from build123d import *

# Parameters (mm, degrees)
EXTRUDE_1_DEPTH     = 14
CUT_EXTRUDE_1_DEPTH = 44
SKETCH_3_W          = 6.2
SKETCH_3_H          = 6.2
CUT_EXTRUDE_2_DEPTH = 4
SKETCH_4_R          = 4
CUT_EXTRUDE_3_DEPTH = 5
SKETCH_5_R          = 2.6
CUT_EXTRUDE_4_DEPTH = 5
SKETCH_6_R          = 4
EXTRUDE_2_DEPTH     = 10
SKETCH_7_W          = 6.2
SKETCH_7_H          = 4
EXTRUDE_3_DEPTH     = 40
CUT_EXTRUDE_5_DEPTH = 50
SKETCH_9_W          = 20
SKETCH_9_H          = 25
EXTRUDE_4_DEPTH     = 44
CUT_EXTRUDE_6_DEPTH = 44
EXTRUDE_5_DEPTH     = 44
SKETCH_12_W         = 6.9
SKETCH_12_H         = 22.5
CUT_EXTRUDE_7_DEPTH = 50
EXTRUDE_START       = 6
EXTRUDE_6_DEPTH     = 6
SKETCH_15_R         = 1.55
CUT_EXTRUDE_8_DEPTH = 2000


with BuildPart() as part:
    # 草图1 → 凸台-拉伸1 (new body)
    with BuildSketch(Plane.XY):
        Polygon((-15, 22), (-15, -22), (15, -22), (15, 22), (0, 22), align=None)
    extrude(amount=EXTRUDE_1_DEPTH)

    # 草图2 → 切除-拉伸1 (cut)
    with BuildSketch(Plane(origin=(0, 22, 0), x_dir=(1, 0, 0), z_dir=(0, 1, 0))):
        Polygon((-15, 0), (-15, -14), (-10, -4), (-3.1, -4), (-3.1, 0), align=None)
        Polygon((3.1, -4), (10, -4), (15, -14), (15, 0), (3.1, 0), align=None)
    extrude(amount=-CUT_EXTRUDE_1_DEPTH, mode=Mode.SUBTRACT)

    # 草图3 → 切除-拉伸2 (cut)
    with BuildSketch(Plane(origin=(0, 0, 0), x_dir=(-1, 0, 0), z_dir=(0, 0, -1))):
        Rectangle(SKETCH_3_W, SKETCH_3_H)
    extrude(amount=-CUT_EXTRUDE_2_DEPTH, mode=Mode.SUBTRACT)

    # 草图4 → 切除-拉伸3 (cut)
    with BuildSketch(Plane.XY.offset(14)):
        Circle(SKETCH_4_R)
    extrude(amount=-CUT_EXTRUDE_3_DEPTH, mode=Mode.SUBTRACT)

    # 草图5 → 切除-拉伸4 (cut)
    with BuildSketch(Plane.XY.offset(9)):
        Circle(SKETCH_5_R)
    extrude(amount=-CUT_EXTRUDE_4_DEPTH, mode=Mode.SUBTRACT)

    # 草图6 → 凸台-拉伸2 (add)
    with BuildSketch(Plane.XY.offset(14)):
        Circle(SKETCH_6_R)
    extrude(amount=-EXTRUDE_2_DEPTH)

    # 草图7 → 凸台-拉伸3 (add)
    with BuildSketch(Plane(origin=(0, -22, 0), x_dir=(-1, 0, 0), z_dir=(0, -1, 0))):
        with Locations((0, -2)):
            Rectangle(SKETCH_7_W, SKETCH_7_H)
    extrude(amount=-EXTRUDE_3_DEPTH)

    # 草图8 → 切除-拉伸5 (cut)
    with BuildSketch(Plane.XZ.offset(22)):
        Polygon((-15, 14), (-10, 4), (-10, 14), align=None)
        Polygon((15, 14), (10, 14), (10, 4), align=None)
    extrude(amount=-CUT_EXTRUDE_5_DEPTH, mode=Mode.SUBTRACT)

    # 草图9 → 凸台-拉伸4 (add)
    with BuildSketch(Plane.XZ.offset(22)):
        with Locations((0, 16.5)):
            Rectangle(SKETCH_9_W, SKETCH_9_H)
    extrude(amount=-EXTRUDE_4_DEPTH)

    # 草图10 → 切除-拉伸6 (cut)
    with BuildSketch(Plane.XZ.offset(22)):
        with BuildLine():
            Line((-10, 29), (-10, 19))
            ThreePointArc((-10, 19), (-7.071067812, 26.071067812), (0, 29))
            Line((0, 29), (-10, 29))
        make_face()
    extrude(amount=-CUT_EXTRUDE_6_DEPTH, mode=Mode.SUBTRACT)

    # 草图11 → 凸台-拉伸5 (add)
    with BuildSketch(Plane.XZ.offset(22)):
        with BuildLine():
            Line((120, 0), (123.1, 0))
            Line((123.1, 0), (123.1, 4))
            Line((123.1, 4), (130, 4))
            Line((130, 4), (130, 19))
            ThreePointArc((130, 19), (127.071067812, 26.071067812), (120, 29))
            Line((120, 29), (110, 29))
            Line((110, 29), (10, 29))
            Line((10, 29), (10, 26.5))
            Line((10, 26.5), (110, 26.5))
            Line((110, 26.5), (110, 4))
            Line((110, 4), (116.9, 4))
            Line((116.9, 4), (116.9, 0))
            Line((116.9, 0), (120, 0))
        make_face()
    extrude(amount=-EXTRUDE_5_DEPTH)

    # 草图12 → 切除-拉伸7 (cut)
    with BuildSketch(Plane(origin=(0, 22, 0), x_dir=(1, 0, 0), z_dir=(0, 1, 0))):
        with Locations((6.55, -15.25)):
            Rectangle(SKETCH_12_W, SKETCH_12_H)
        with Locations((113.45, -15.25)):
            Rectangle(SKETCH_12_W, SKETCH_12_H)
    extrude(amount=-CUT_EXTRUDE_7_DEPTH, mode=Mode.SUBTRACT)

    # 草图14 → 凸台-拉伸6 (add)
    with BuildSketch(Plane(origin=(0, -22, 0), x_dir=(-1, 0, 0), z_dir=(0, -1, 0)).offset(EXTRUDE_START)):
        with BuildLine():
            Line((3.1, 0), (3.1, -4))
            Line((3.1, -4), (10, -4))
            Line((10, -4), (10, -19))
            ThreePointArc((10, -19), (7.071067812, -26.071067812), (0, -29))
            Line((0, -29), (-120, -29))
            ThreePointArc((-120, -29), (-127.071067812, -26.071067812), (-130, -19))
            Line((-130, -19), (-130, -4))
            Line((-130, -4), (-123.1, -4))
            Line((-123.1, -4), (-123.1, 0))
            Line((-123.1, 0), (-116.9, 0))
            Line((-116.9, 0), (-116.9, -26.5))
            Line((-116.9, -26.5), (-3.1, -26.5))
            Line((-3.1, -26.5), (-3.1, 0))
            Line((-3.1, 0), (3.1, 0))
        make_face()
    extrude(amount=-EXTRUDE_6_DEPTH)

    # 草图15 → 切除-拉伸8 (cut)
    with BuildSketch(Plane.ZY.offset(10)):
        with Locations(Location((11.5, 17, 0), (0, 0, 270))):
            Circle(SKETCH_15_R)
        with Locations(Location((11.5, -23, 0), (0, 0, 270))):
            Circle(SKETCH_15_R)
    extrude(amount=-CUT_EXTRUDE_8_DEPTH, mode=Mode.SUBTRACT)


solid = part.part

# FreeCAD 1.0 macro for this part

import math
import FreeCAD as App
import Part
import Sketcher

doc = App.newDocument("Part")
body = doc.addObject("PartDesign::Body", "Body")

# Sketch on XY plane
sketch1 = body.newObject("Sketcher::SketchObject", "Sketch")
sketch1.AttachmentSupport = (doc.getObject("XY_Plane"), [""])
sketch1.MapMode = "FlatFace"
sketch1.addGeometry([
    Part.LineSegment(App.Vector(-15, 22, 0), App.Vector(-15, -22, 0)),
    Part.LineSegment(App.Vector(-15, -22, 0), App.Vector(15, -22, 0)),
    Part.LineSegment(App.Vector(15, -22, 0), App.Vector(15, 22, 0)),
    Part.LineSegment(App.Vector(15, 22, 0), App.Vector(-15, 22, 0)),
], False)
sketch1.addConstraint([
    Sketcher.Constraint("Coincident", 0, 2, 1, 1),
    Sketcher.Constraint("Coincident", 1, 2, 2, 1),
    Sketcher.Constraint("Coincident", 2, 2, 3, 1),
    Sketcher.Constraint("Coincident", 3, 2, 0, 1),
    Sketcher.Constraint("Vertical", 0),
    Sketcher.Constraint("Horizontal", 1),
    Sketcher.Constraint("Vertical", 2),
    Sketcher.Constraint("Horizontal", 3),
    Sketcher.Constraint("Symmetric", 0, 2, 2, 2, -1, 1),
    Sketcher.Constraint("DistanceX", 1, 1, 1, 2, 30.0),
    Sketcher.Constraint("DistanceY", 0, 2, 0, 1, 44.0),
])
pad1 = body.newObject("PartDesign::Pad", "Pad")
pad1.Profile = sketch1
pad1.Length = 14

# Sketch on XZ plane
sketch2 = body.newObject("Sketcher::SketchObject", "Sketch001")
sketch2.AttachmentSupport = (doc.getObject("XZ_Plane"), [""])
sketch2.MapMode = "FlatFace"
sketch2.AttachmentOffset = App.Placement(App.Vector(0, 0, -22), App.Rotation())
sketch2.addGeometry([
    Part.LineSegment(App.Vector(-15, 0, 0), App.Vector(-15, 14, 0)),  # 0
    Part.LineSegment(App.Vector(-15, 14, 0), App.Vector(-10, 4, 0)),  # 1
    Part.LineSegment(App.Vector(-10, 4, 0), App.Vector(-3.1, 4, 0)),  # 2
    Part.LineSegment(App.Vector(-3.1, 4, 0), App.Vector(-3.1, 0, 0)),  # 3
    Part.LineSegment(App.Vector(-3.1, 0, 0), App.Vector(-15, 0, 0)),  # 4
    Part.LineSegment(App.Vector(3.1, 4, 0), App.Vector(10, 4, 0)),  # 5
    Part.LineSegment(App.Vector(10, 4, 0), App.Vector(15, 14, 0)),  # 6
    Part.LineSegment(App.Vector(15, 14, 0), App.Vector(15, 0, 0)),  # 7
    Part.LineSegment(App.Vector(15, 0, 0), App.Vector(3.1, 0, 0)),  # 8
    Part.LineSegment(App.Vector(3.1, 0, 0), App.Vector(3.1, 4, 0)),  # 9
], False)
sketch2.addConstraint([
    Sketcher.Constraint("Coincident", 0, 2, 1, 1),
    Sketcher.Constraint("Coincident", 1, 2, 2, 1),
    Sketcher.Constraint("Coincident", 2, 2, 3, 1),
    Sketcher.Constraint("Coincident", 3, 2, 4, 1),
    Sketcher.Constraint("Coincident", 4, 2, 0, 1),
    Sketcher.Constraint("Coincident", 5, 2, 6, 1),
    Sketcher.Constraint("Coincident", 6, 2, 7, 1),
    Sketcher.Constraint("Coincident", 7, 2, 8, 1),
    Sketcher.Constraint("Coincident", 8, 2, 9, 1),
    Sketcher.Constraint("Coincident", 9, 2, 5, 1),
    Sketcher.Constraint("Vertical", 0),
    Sketcher.Constraint("Horizontal", 2),
    Sketcher.Constraint("Vertical", 3),
    Sketcher.Constraint("Horizontal", 4),
    Sketcher.Constraint("Horizontal", 5),
    Sketcher.Constraint("Vertical", 7),
    Sketcher.Constraint("Horizontal", 8),
    Sketcher.Constraint("Vertical", 9),
    Sketcher.Constraint("Symmetric", 4, 2, 7, 2, -1, 1),
    Sketcher.Constraint("Symmetric", 1, 2, 5, 2, -2),
    Sketcher.Constraint("Symmetric", 3, 2, 8, 2, -2),
    Sketcher.Constraint("Horizontal", 0, 2, 6, 2),
    Sketcher.Constraint("DistanceY", 0, 1, 0, 2, 14.0),
    Sketcher.Constraint("DistanceY", 3, 2, 3, 1, 4.0),
    Sketcher.Constraint("DistanceX", 2, 1, 2, 2, 6.9),
    Sketcher.Constraint("DistanceX", 4, 2, 4, 1, 11.9),
    Sketcher.Constraint("DistanceX", 0, 2, -1, 1, 15.0),
])
pocket1 = body.newObject("PartDesign::Pocket", "Pocket")
pocket1.Profile = sketch2
pocket1.Length = 44
pocket1.Reversed = True

# Sketch on XY plane
sketch3 = body.newObject("Sketcher::SketchObject", "Sketch002")
sketch3.AttachmentSupport = (doc.getObject("XY_Plane"), [""])
sketch3.MapMode = "FlatFace"
sketch3.addGeometry([
    Part.LineSegment(App.Vector(3.1, 3.1, 0), App.Vector(3.1, -3.1, 0)),
    Part.LineSegment(App.Vector(3.1, -3.1, 0), App.Vector(-3.1, -3.1, 0)),
    Part.LineSegment(App.Vector(-3.1, -3.1, 0), App.Vector(-3.1, 3.1, 0)),
    Part.LineSegment(App.Vector(-3.1, 3.1, 0), App.Vector(3.1, 3.1, 0)),
], False)
sketch3.addConstraint([
    Sketcher.Constraint("Coincident", 0, 2, 1, 1),
    Sketcher.Constraint("Coincident", 1, 2, 2, 1),
    Sketcher.Constraint("Coincident", 2, 2, 3, 1),
    Sketcher.Constraint("Coincident", 3, 2, 0, 1),
    Sketcher.Constraint("Vertical", 0),
    Sketcher.Constraint("Horizontal", 1),
    Sketcher.Constraint("Vertical", 2),
    Sketcher.Constraint("Horizontal", 3),
    Sketcher.Constraint("Symmetric", 0, 2, 2, 2, -1, 1),
    Sketcher.Constraint("Equal", 3, 0),
    Sketcher.Constraint("DistanceX", 1, 2, 1, 1, 6.2),
])
pocket2 = body.newObject("PartDesign::Pocket", "Pocket001")
pocket2.Profile = sketch3
pocket2.Length = 4
pocket2.Reversed = True

# Sketch on XY plane
sketch4 = body.newObject("Sketcher::SketchObject", "Sketch003")
sketch4.AttachmentSupport = (doc.getObject("XY_Plane"), [""])
sketch4.MapMode = "FlatFace"
sketch4.AttachmentOffset = App.Placement(App.Vector(0, 0, 14), App.Rotation())
sketch4.addGeometry(Part.Circle(App.Vector(0, 0, 0), App.Vector(0, 0, 1), 4), False)
sketch4.addConstraint([
    Sketcher.Constraint("Coincident", 0, 3, -1, 1),
    Sketcher.Constraint("Diameter", 0, 8.0),
])
pocket3 = body.newObject("PartDesign::Pocket", "Pocket002")
pocket3.Profile = sketch4
pocket3.Length = 5

# Sketch on XY plane
sketch5 = body.newObject("Sketcher::SketchObject", "Sketch004")
sketch5.AttachmentSupport = (doc.getObject("XY_Plane"), [""])
sketch5.MapMode = "FlatFace"
sketch5.AttachmentOffset = App.Placement(App.Vector(0, 0, 9), App.Rotation())
sketch5.addGeometry(Part.Circle(App.Vector(0, 0, 0), App.Vector(0, 0, 1), 2.6), False)
sketch5.addConstraint([
    Sketcher.Constraint("Coincident", 0, 3, -1, 1),
    Sketcher.Constraint("Diameter", 0, 5.2),
])
pocket4 = body.newObject("PartDesign::Pocket", "Pocket003")
pocket4.Profile = sketch5
pocket4.Length = 5

# Sketch on XY plane
sketch6 = body.newObject("Sketcher::SketchObject", "Sketch005")
sketch6.AttachmentSupport = (doc.getObject("XY_Plane"), [""])
sketch6.MapMode = "FlatFace"
sketch6.AttachmentOffset = App.Placement(App.Vector(0, 0, 14), App.Rotation())
sketch6.addGeometry(Part.Circle(App.Vector(0, 0, 0), App.Vector(0, 0, 1), 4), False)
sketch6.addConstraint([
    Sketcher.Constraint("Coincident", 0, 3, -1, 1),
    Sketcher.Constraint("Diameter", 0, 8.0),
])
pad2 = body.newObject("PartDesign::Pad", "Pad001")
pad2.Profile = sketch6
pad2.Length = 10
pad2.Reversed = True

# Sketch on XZ plane
sketch7 = body.newObject("Sketcher::SketchObject", "Sketch006")
sketch7.AttachmentSupport = (doc.getObject("XZ_Plane"), [""])
sketch7.MapMode = "FlatFace"
sketch7.AttachmentOffset = App.Placement(App.Vector(0, 0, 22), App.Rotation())
sketch7.addGeometry([
    Part.LineSegment(App.Vector(3.1, 0, 0), App.Vector(3.1, 4, 0)),
    Part.LineSegment(App.Vector(3.1, 4, 0), App.Vector(-3.1, 4, 0)),
    Part.LineSegment(App.Vector(-3.1, 4, 0), App.Vector(-3.1, 0, 0)),
    Part.LineSegment(App.Vector(-3.1, 0, 0), App.Vector(3.1, 0, 0)),
], False)
sketch7.addConstraint([
    Sketcher.Constraint("Coincident", 0, 2, 1, 1),
    Sketcher.Constraint("Coincident", 1, 2, 2, 1),
    Sketcher.Constraint("Coincident", 2, 2, 3, 1),
    Sketcher.Constraint("Coincident", 3, 2, 0, 1),
    Sketcher.Constraint("Vertical", 0),
    Sketcher.Constraint("Horizontal", 1),
    Sketcher.Constraint("Vertical", 2),
    Sketcher.Constraint("Horizontal", 3),
    Sketcher.Constraint("Symmetric", 2, 2, 3, 2, -1, 1),
    Sketcher.Constraint("DistanceY", 0, 1, 0, 2, 4.0),
    Sketcher.Constraint("DistanceX", 1, 2, 1, 1, 6.2),
])
pad3 = body.newObject("PartDesign::Pad", "Pad002")
pad3.Profile = sketch7
pad3.Length = 40
pad3.Reversed = True

# Sketch on XZ plane
sketch8 = body.newObject("Sketcher::SketchObject", "Sketch007")
sketch8.AttachmentSupport = (doc.getObject("XZ_Plane"), [""])
sketch8.MapMode = "FlatFace"
sketch8.AttachmentOffset = App.Placement(App.Vector(0, 0, 22), App.Rotation())
sketch8.addGeometry([
    Part.LineSegment(App.Vector(-15, 14, 0), App.Vector(-10, 4, 0)),  # 0
    Part.LineSegment(App.Vector(-10, 4, 0), App.Vector(-10, 14, 0)),  # 1
    Part.LineSegment(App.Vector(-10, 14, 0), App.Vector(-15, 14, 0)),  # 2
    Part.LineSegment(App.Vector(15, 14, 0), App.Vector(10, 14, 0)),  # 3
    Part.LineSegment(App.Vector(10, 14, 0), App.Vector(10, 4, 0)),  # 4
    Part.LineSegment(App.Vector(10, 4, 0), App.Vector(15, 14, 0)),  # 5
], False)
sketch8.addConstraint([
    Sketcher.Constraint("Coincident", 0, 2, 1, 1),
    Sketcher.Constraint("Coincident", 1, 2, 2, 1),
    Sketcher.Constraint("Coincident", 2, 2, 0, 1),
    Sketcher.Constraint("Coincident", 3, 2, 4, 1),
    Sketcher.Constraint("Coincident", 4, 2, 5, 1),
    Sketcher.Constraint("Coincident", 5, 2, 3, 1),
    Sketcher.Constraint("Vertical", 1),
    Sketcher.Constraint("Horizontal", 2),
    Sketcher.Constraint("Horizontal", 3),
    Sketcher.Constraint("Vertical", 4),
    Sketcher.Constraint("Symmetric", 1, 2, 3, 2, -2),
    Sketcher.Constraint("Horizontal", 0, 2, 4, 2),
    Sketcher.Constraint("Equal", 2, 3),
    Sketcher.Constraint("DistanceX", 2, 2, 2, 1, 5.0),
    Sketcher.Constraint("DistanceY", 1, 1, 1, 2, 10.0),
    Sketcher.Constraint("DistanceX", 0, 2, -1, 1, 10.0),
    Sketcher.Constraint("DistanceY", -1, 1, 0, 2, 4.0),
])
pocket5 = body.newObject("PartDesign::Pocket", "Pocket004")
pocket5.Profile = sketch8
pocket5.Length = 50

# Sketch on XZ plane
sketch9 = body.newObject("Sketcher::SketchObject", "Sketch008")
sketch9.AttachmentSupport = (doc.getObject("XZ_Plane"), [""])
sketch9.MapMode = "FlatFace"
sketch9.AttachmentOffset = App.Placement(App.Vector(0, 0, 22), App.Rotation())
sketch9.addGeometry([
    Part.LineSegment(App.Vector(-10, 29, 0), App.Vector(-10, 4, 0)),
    Part.LineSegment(App.Vector(-10, 4, 0), App.Vector(10, 4, 0)),
    Part.LineSegment(App.Vector(10, 4, 0), App.Vector(10, 29, 0)),
    Part.LineSegment(App.Vector(10, 29, 0), App.Vector(-10, 29, 0)),
], False)
sketch9.addConstraint([
    Sketcher.Constraint("Coincident", 0, 2, 1, 1),
    Sketcher.Constraint("Coincident", 1, 2, 2, 1),
    Sketcher.Constraint("Coincident", 2, 2, 3, 1),
    Sketcher.Constraint("Coincident", 3, 2, 0, 1),
    Sketcher.Constraint("Vertical", 0),
    Sketcher.Constraint("Horizontal", 1),
    Sketcher.Constraint("Vertical", 2),
    Sketcher.Constraint("Horizontal", 3),
    Sketcher.Constraint("DistanceX", 1, 1, 1, 2, 20.0),
    Sketcher.Constraint("DistanceY", 0, 2, 0, 1, 25.0),
    Sketcher.Constraint("DistanceX", 0, 2, -1, 1, 10.0),
    Sketcher.Constraint("DistanceY", -1, 1, 0, 2, 4.0),
])
pad4 = body.newObject("PartDesign::Pad", "Pad003")
pad4.Profile = sketch9
pad4.Length = 44
pad4.Reversed = True

# Sketch on XZ plane
sketch10 = body.newObject("Sketcher::SketchObject", "Sketch009")
sketch10.AttachmentSupport = (doc.getObject("XZ_Plane"), [""])
sketch10.MapMode = "FlatFace"
sketch10.AttachmentOffset = App.Placement(App.Vector(0, 0, 22), App.Rotation())
sketch10.addGeometry([
    Part.LineSegment(App.Vector(-10, 29, 0), App.Vector(-10, 19, 0)),
    Part.ArcOfCircle(Part.Circle(App.Vector(0, 19, 0), App.Vector(0, 0, 1), 10), math.radians(90), math.radians(180)),
    Part.LineSegment(App.Vector(0, 29, 0), App.Vector(-10, 29, 0)),
], False)
sketch10.addConstraint([
    Sketcher.Constraint("Tangent", 0, 2, 1, 2),
    Sketcher.Constraint("Tangent", 1, 1, 2, 1),
    Sketcher.Constraint("Coincident", 2, 2, 0, 1),
    Sketcher.Constraint("Vertical", 0),
    Sketcher.Constraint("Horizontal", 2),
    Sketcher.Constraint("PointOnObject", 1, 3, -2),
    Sketcher.Constraint("Radius", 1, 10.0),
    Sketcher.Constraint("DistanceY", -1, 1, 1, 3, 19.0),
])
pocket6 = body.newObject("PartDesign::Pocket", "Pocket005")
pocket6.Profile = sketch10
pocket6.Length = 44

# Sketch on XZ plane
sketch11 = body.newObject("Sketcher::SketchObject", "Sketch010")
sketch11.AttachmentSupport = (doc.getObject("XZ_Plane"), [""])
sketch11.MapMode = "FlatFace"
sketch11.AttachmentOffset = App.Placement(App.Vector(0, 0, 22), App.Rotation())
sketch11.addGeometry([
    Part.LineSegment(App.Vector(123.1, 0, 0), App.Vector(123.1, 4, 0)),  # 0
    Part.LineSegment(App.Vector(123.1, 4, 0), App.Vector(130, 4, 0)),  # 1
    Part.LineSegment(App.Vector(130, 4, 0), App.Vector(130, 19, 0)),  # 2
    Part.ArcOfCircle(Part.Circle(App.Vector(120, 19, 0), App.Vector(0, 0, 1), 10), math.radians(0), math.radians(90)),  # 3
    Part.LineSegment(App.Vector(120, 29, 0), App.Vector(10, 29, 0)),  # 4
    Part.LineSegment(App.Vector(10, 29, 0), App.Vector(10, 26.5, 0)),  # 5
    Part.LineSegment(App.Vector(10, 26.5, 0), App.Vector(110, 26.5, 0)),  # 6
    Part.LineSegment(App.Vector(110, 26.5, 0), App.Vector(110, 4, 0)),  # 7
    Part.LineSegment(App.Vector(110, 4, 0), App.Vector(116.9, 4, 0)),  # 8
    Part.LineSegment(App.Vector(116.9, 4, 0), App.Vector(116.9, 0, 0)),  # 9
    Part.LineSegment(App.Vector(116.9, 0, 0), App.Vector(123.1, 0, 0)),  # 10
], False)
sketch11.addConstraint([
    Sketcher.Constraint("Coincident", 0, 2, 1, 1),
    Sketcher.Constraint("Coincident", 1, 2, 2, 1),
    Sketcher.Constraint("Tangent", 2, 2, 3, 1),
    Sketcher.Constraint("Tangent", 3, 2, 4, 1),
    Sketcher.Constraint("Coincident", 4, 2, 5, 1),
    Sketcher.Constraint("Coincident", 5, 2, 6, 1),
    Sketcher.Constraint("Coincident", 6, 2, 7, 1),
    Sketcher.Constraint("Coincident", 7, 2, 8, 1),
    Sketcher.Constraint("Coincident", 8, 2, 9, 1),
    Sketcher.Constraint("Coincident", 9, 2, 10, 1),
    Sketcher.Constraint("Coincident", 10, 2, 0, 1),
    Sketcher.Constraint("Vertical", 0),
    Sketcher.Constraint("Horizontal", 1),
    Sketcher.Constraint("Vertical", 2),
    Sketcher.Constraint("Horizontal", 4),
    Sketcher.Constraint("Vertical", 5),
    Sketcher.Constraint("Horizontal", 6),
    Sketcher.Constraint("Vertical", 7),
    Sketcher.Constraint("Horizontal", 8),
    Sketcher.Constraint("Vertical", 9),
    Sketcher.Constraint("Horizontal", 10),
    Sketcher.Constraint("PointOnObject", 9, 2, -1),
    Sketcher.Constraint("Horizontal", 1, 2, 7, 2),
    Sketcher.Constraint("Equal", 1, 8),
    Sketcher.Constraint("Radius", 3, 10.0),
    Sketcher.Constraint("DistanceX", 4, 2, 4, 1, 110.0),
    Sketcher.Constraint("DistanceX", 6, 1, 6, 2, 100.0),
    Sketcher.Constraint("DistanceY", 0, 1, 0, 2, 4.0),
    Sketcher.Constraint("DistanceY", 2, 1, 2, 2, 15.0),
    Sketcher.Constraint("DistanceX", 1, 1, 1, 2, 6.9),
    Sketcher.Constraint("DistanceY", 5, 2, 5, 1, 2.5),
    Sketcher.Constraint("DistanceX", -1, 1, 3, 3, 120.0),
])
pad5 = body.newObject("PartDesign::Pad", "Pad004")
pad5.Profile = sketch11
pad5.Length = 44
pad5.Reversed = True

# Sketch on XZ plane
sketch12 = body.newObject("Sketcher::SketchObject", "Sketch011")
sketch12.AttachmentSupport = (doc.getObject("XZ_Plane"), [""])
sketch12.MapMode = "FlatFace"
sketch12.AttachmentOffset = App.Placement(App.Vector(0, 0, -22), App.Rotation())
sketch12.addGeometry([
    Part.LineSegment(App.Vector(3.1, 4, 0), App.Vector(3.1, 26.5, 0)),  # 0
    Part.LineSegment(App.Vector(3.1, 26.5, 0), App.Vector(10, 26.5, 0)),  # 1
    Part.LineSegment(App.Vector(10, 26.5, 0), App.Vector(10, 4, 0)),  # 2
    Part.LineSegment(App.Vector(10, 4, 0), App.Vector(3.1, 4, 0)),  # 3
    Part.LineSegment(App.Vector(110, 4, 0), App.Vector(110, 26.5, 0)),  # 4
    Part.LineSegment(App.Vector(110, 26.5, 0), App.Vector(116.9, 26.5, 0)),  # 5
    Part.LineSegment(App.Vector(116.9, 26.5, 0), App.Vector(116.9, 4, 0)),  # 6
    Part.LineSegment(App.Vector(116.9, 4, 0), App.Vector(110, 4, 0)),  # 7
], False)
sketch12.addConstraint([
    Sketcher.Constraint("Coincident", 0, 2, 1, 1),
    Sketcher.Constraint("Coincident", 1, 2, 2, 1),
    Sketcher.Constraint("Coincident", 2, 2, 3, 1),
    Sketcher.Constraint("Coincident", 3, 2, 0, 1),
    Sketcher.Constraint("Coincident", 4, 2, 5, 1),
    Sketcher.Constraint("Coincident", 5, 2, 6, 1),
    Sketcher.Constraint("Coincident", 6, 2, 7, 1),
    Sketcher.Constraint("Coincident", 7, 2, 4, 1),
    Sketcher.Constraint("Vertical", 0),
    Sketcher.Constraint("Horizontal", 1),
    Sketcher.Constraint("Vertical", 2),
    Sketcher.Constraint("Horizontal", 3),
    Sketcher.Constraint("Vertical", 4),
    Sketcher.Constraint("Horizontal", 5),
    Sketcher.Constraint("Vertical", 6),
    Sketcher.Constraint("Horizontal", 7),
    Sketcher.Constraint("Horizontal", 1, 2, 4, 2),
    Sketcher.Constraint("Horizontal", 3, 2, 6, 2),
    Sketcher.Constraint("Equal", 3, 5),
    Sketcher.Constraint("DistanceX", 1, 1, 1, 2, 6.9),
    Sketcher.Constraint("DistanceY", 0, 1, 0, 2, 22.5),
    Sketcher.Constraint("DistanceX", -1, 1, 1, 2, 10.0),
    Sketcher.Constraint("DistanceY", -1, 1, 2, 2, 4.0),
    Sketcher.Constraint("DistanceX", -1, 1, 4, 2, 110.0),
])
pocket7 = body.newObject("PartDesign::Pocket", "Pocket006")
pocket7.Profile = sketch12
pocket7.Length = 50
pocket7.Reversed = True

# Sketch on XZ plane
sketch13 = body.newObject("Sketcher::SketchObject", "Sketch012")
sketch13.AttachmentSupport = (doc.getObject("XZ_Plane"), [""])
sketch13.MapMode = "FlatFace"
sketch13.AttachmentOffset = App.Placement(App.Vector(0, 0, 28), App.Rotation())
sketch13.addGeometry([
    Part.LineSegment(App.Vector(-3.1, 4, 0), App.Vector(-3.1, 0, 0)),  # 0
    Part.LineSegment(App.Vector(-3.1, 0, 0), App.Vector(3.1, 0, 0)),  # 1
    Part.LineSegment(App.Vector(3.1, 0, 0), App.Vector(3.1, 26.5, 0)),  # 2
    Part.LineSegment(App.Vector(3.1, 26.5, 0), App.Vector(116.9, 26.5, 0)),  # 3
    Part.LineSegment(App.Vector(116.9, 26.5, 0), App.Vector(116.9, 0, 0)),  # 4
    Part.LineSegment(App.Vector(116.9, 0, 0), App.Vector(123.1, 0, 0)),  # 5
    Part.LineSegment(App.Vector(123.1, 0, 0), App.Vector(123.1, 4, 0)),  # 6
    Part.LineSegment(App.Vector(123.1, 4, 0), App.Vector(130, 4, 0)),  # 7
    Part.LineSegment(App.Vector(130, 4, 0), App.Vector(130, 19, 0)),  # 8
    Part.ArcOfCircle(Part.Circle(App.Vector(120, 19, 0), App.Vector(0, 0, 1), 10), math.radians(0), math.radians(90)),  # 9
    Part.LineSegment(App.Vector(120, 29, 0), App.Vector(0, 29, 0)),  # 10
    Part.ArcOfCircle(Part.Circle(App.Vector(0, 19, 0), App.Vector(0, 0, 1), 10), math.radians(90), math.radians(180)),  # 11
    Part.LineSegment(App.Vector(-10, 19, 0), App.Vector(-10, 4, 0)),  # 12
    Part.LineSegment(App.Vector(-10, 4, 0), App.Vector(-3.1, 4, 0)),  # 13
], False)
sketch13.addConstraint([
    Sketcher.Constraint("Coincident", 0, 2, 1, 1),
    Sketcher.Constraint("Coincident", 1, 2, 2, 1),
    Sketcher.Constraint("Coincident", 2, 2, 3, 1),
    Sketcher.Constraint("Coincident", 3, 2, 4, 1),
    Sketcher.Constraint("Coincident", 4, 2, 5, 1),
    Sketcher.Constraint("Coincident", 5, 2, 6, 1),
    Sketcher.Constraint("Coincident", 6, 2, 7, 1),
    Sketcher.Constraint("Coincident", 7, 2, 8, 1),
    Sketcher.Constraint("Tangent", 8, 2, 9, 1),
    Sketcher.Constraint("Tangent", 9, 2, 10, 1),
    Sketcher.Constraint("Tangent", 10, 2, 11, 1),
    Sketcher.Constraint("Tangent", 11, 2, 12, 1),
    Sketcher.Constraint("Coincident", 12, 2, 13, 1),
    Sketcher.Constraint("Coincident", 13, 2, 0, 1),
    Sketcher.Constraint("Vertical", 0),
    Sketcher.Constraint("Horizontal", 1),
    Sketcher.Constraint("Vertical", 2),
    Sketcher.Constraint("Horizontal", 3),
    Sketcher.Constraint("Vertical", 4),
    Sketcher.Constraint("Horizontal", 5),
    Sketcher.Constraint("Vertical", 6),
    Sketcher.Constraint("Horizontal", 7),
    Sketcher.Constraint("Vertical", 8),
    Sketcher.Constraint("Horizontal", 10),
    Sketcher.Constraint("Vertical", 12),
    Sketcher.Constraint("Horizontal", 13),
    Sketcher.Constraint("Equal", 9, 11),
    Sketcher.Constraint("Symmetric", 0, 2, 1, 2, -1, 1),
    Sketcher.Constraint("PointOnObject", 11, 3, -2),
    Sketcher.Constraint("PointOnObject", 4, 2, -1),
    Sketcher.Constraint("Horizontal", 7, 2, 12, 2),
    Sketcher.Constraint("Equal", 1, 5),
    Sketcher.Constraint("Equal", 7, 13),
    Sketcher.Constraint("Radius", 9, 10.0),
    Sketcher.Constraint("DistanceX", 10, 2, 10, 1, 120.0),
    Sketcher.Constraint("DistanceY", 0, 2, 0, 1, 4.0),
    Sketcher.Constraint("DistanceY", 8, 1, 8, 2, 15.0),
    Sketcher.Constraint("DistanceX", 1, 1, 1, 2, 6.2),
    Sketcher.Constraint("DistanceY", 2, 1, 2, 2, 26.5),
])
pad6 = body.newObject("PartDesign::Pad", "Pad005")
pad6.Profile = sketch13
pad6.Length = 6
pad6.Reversed = True

# Sketch on YZ plane
sketch14 = body.newObject("Sketcher::SketchObject", "Sketch013")
sketch14.AttachmentSupport = (doc.getObject("YZ_Plane"), [""])
sketch14.MapMode = "FlatFace"
sketch14.AttachmentOffset = App.Placement(App.Vector(0, 0, -10), App.Rotation())
sketch14.addGeometry([
    Part.Circle(App.Vector(17, 11.5, 0), App.Vector(0, 0, 1), 1.55),
    Part.Circle(App.Vector(-23, 11.5, 0), App.Vector(0, 0, 1), 1.55),
], False)
sketch14.addConstraint([
    Sketcher.Constraint("Equal", 0, 1),
    Sketcher.Constraint("Horizontal", 0, 3, 1, 3),
    Sketcher.Constraint("Diameter", 0, 3.1),
    Sketcher.Constraint("DistanceX", -1, 1, 0, 3, 17.0),
    Sketcher.Constraint("DistanceX", 1, 3, -1, 1, 23.0),
    Sketcher.Constraint("DistanceY", -1, 1, 0, 3, 11.5),
])
pocket8 = body.newObject("PartDesign::Pocket", "Pocket007")
pocket8.Profile = sketch14
pocket8.Length = 2000
pocket8.Reversed = True

doc.recompute()
